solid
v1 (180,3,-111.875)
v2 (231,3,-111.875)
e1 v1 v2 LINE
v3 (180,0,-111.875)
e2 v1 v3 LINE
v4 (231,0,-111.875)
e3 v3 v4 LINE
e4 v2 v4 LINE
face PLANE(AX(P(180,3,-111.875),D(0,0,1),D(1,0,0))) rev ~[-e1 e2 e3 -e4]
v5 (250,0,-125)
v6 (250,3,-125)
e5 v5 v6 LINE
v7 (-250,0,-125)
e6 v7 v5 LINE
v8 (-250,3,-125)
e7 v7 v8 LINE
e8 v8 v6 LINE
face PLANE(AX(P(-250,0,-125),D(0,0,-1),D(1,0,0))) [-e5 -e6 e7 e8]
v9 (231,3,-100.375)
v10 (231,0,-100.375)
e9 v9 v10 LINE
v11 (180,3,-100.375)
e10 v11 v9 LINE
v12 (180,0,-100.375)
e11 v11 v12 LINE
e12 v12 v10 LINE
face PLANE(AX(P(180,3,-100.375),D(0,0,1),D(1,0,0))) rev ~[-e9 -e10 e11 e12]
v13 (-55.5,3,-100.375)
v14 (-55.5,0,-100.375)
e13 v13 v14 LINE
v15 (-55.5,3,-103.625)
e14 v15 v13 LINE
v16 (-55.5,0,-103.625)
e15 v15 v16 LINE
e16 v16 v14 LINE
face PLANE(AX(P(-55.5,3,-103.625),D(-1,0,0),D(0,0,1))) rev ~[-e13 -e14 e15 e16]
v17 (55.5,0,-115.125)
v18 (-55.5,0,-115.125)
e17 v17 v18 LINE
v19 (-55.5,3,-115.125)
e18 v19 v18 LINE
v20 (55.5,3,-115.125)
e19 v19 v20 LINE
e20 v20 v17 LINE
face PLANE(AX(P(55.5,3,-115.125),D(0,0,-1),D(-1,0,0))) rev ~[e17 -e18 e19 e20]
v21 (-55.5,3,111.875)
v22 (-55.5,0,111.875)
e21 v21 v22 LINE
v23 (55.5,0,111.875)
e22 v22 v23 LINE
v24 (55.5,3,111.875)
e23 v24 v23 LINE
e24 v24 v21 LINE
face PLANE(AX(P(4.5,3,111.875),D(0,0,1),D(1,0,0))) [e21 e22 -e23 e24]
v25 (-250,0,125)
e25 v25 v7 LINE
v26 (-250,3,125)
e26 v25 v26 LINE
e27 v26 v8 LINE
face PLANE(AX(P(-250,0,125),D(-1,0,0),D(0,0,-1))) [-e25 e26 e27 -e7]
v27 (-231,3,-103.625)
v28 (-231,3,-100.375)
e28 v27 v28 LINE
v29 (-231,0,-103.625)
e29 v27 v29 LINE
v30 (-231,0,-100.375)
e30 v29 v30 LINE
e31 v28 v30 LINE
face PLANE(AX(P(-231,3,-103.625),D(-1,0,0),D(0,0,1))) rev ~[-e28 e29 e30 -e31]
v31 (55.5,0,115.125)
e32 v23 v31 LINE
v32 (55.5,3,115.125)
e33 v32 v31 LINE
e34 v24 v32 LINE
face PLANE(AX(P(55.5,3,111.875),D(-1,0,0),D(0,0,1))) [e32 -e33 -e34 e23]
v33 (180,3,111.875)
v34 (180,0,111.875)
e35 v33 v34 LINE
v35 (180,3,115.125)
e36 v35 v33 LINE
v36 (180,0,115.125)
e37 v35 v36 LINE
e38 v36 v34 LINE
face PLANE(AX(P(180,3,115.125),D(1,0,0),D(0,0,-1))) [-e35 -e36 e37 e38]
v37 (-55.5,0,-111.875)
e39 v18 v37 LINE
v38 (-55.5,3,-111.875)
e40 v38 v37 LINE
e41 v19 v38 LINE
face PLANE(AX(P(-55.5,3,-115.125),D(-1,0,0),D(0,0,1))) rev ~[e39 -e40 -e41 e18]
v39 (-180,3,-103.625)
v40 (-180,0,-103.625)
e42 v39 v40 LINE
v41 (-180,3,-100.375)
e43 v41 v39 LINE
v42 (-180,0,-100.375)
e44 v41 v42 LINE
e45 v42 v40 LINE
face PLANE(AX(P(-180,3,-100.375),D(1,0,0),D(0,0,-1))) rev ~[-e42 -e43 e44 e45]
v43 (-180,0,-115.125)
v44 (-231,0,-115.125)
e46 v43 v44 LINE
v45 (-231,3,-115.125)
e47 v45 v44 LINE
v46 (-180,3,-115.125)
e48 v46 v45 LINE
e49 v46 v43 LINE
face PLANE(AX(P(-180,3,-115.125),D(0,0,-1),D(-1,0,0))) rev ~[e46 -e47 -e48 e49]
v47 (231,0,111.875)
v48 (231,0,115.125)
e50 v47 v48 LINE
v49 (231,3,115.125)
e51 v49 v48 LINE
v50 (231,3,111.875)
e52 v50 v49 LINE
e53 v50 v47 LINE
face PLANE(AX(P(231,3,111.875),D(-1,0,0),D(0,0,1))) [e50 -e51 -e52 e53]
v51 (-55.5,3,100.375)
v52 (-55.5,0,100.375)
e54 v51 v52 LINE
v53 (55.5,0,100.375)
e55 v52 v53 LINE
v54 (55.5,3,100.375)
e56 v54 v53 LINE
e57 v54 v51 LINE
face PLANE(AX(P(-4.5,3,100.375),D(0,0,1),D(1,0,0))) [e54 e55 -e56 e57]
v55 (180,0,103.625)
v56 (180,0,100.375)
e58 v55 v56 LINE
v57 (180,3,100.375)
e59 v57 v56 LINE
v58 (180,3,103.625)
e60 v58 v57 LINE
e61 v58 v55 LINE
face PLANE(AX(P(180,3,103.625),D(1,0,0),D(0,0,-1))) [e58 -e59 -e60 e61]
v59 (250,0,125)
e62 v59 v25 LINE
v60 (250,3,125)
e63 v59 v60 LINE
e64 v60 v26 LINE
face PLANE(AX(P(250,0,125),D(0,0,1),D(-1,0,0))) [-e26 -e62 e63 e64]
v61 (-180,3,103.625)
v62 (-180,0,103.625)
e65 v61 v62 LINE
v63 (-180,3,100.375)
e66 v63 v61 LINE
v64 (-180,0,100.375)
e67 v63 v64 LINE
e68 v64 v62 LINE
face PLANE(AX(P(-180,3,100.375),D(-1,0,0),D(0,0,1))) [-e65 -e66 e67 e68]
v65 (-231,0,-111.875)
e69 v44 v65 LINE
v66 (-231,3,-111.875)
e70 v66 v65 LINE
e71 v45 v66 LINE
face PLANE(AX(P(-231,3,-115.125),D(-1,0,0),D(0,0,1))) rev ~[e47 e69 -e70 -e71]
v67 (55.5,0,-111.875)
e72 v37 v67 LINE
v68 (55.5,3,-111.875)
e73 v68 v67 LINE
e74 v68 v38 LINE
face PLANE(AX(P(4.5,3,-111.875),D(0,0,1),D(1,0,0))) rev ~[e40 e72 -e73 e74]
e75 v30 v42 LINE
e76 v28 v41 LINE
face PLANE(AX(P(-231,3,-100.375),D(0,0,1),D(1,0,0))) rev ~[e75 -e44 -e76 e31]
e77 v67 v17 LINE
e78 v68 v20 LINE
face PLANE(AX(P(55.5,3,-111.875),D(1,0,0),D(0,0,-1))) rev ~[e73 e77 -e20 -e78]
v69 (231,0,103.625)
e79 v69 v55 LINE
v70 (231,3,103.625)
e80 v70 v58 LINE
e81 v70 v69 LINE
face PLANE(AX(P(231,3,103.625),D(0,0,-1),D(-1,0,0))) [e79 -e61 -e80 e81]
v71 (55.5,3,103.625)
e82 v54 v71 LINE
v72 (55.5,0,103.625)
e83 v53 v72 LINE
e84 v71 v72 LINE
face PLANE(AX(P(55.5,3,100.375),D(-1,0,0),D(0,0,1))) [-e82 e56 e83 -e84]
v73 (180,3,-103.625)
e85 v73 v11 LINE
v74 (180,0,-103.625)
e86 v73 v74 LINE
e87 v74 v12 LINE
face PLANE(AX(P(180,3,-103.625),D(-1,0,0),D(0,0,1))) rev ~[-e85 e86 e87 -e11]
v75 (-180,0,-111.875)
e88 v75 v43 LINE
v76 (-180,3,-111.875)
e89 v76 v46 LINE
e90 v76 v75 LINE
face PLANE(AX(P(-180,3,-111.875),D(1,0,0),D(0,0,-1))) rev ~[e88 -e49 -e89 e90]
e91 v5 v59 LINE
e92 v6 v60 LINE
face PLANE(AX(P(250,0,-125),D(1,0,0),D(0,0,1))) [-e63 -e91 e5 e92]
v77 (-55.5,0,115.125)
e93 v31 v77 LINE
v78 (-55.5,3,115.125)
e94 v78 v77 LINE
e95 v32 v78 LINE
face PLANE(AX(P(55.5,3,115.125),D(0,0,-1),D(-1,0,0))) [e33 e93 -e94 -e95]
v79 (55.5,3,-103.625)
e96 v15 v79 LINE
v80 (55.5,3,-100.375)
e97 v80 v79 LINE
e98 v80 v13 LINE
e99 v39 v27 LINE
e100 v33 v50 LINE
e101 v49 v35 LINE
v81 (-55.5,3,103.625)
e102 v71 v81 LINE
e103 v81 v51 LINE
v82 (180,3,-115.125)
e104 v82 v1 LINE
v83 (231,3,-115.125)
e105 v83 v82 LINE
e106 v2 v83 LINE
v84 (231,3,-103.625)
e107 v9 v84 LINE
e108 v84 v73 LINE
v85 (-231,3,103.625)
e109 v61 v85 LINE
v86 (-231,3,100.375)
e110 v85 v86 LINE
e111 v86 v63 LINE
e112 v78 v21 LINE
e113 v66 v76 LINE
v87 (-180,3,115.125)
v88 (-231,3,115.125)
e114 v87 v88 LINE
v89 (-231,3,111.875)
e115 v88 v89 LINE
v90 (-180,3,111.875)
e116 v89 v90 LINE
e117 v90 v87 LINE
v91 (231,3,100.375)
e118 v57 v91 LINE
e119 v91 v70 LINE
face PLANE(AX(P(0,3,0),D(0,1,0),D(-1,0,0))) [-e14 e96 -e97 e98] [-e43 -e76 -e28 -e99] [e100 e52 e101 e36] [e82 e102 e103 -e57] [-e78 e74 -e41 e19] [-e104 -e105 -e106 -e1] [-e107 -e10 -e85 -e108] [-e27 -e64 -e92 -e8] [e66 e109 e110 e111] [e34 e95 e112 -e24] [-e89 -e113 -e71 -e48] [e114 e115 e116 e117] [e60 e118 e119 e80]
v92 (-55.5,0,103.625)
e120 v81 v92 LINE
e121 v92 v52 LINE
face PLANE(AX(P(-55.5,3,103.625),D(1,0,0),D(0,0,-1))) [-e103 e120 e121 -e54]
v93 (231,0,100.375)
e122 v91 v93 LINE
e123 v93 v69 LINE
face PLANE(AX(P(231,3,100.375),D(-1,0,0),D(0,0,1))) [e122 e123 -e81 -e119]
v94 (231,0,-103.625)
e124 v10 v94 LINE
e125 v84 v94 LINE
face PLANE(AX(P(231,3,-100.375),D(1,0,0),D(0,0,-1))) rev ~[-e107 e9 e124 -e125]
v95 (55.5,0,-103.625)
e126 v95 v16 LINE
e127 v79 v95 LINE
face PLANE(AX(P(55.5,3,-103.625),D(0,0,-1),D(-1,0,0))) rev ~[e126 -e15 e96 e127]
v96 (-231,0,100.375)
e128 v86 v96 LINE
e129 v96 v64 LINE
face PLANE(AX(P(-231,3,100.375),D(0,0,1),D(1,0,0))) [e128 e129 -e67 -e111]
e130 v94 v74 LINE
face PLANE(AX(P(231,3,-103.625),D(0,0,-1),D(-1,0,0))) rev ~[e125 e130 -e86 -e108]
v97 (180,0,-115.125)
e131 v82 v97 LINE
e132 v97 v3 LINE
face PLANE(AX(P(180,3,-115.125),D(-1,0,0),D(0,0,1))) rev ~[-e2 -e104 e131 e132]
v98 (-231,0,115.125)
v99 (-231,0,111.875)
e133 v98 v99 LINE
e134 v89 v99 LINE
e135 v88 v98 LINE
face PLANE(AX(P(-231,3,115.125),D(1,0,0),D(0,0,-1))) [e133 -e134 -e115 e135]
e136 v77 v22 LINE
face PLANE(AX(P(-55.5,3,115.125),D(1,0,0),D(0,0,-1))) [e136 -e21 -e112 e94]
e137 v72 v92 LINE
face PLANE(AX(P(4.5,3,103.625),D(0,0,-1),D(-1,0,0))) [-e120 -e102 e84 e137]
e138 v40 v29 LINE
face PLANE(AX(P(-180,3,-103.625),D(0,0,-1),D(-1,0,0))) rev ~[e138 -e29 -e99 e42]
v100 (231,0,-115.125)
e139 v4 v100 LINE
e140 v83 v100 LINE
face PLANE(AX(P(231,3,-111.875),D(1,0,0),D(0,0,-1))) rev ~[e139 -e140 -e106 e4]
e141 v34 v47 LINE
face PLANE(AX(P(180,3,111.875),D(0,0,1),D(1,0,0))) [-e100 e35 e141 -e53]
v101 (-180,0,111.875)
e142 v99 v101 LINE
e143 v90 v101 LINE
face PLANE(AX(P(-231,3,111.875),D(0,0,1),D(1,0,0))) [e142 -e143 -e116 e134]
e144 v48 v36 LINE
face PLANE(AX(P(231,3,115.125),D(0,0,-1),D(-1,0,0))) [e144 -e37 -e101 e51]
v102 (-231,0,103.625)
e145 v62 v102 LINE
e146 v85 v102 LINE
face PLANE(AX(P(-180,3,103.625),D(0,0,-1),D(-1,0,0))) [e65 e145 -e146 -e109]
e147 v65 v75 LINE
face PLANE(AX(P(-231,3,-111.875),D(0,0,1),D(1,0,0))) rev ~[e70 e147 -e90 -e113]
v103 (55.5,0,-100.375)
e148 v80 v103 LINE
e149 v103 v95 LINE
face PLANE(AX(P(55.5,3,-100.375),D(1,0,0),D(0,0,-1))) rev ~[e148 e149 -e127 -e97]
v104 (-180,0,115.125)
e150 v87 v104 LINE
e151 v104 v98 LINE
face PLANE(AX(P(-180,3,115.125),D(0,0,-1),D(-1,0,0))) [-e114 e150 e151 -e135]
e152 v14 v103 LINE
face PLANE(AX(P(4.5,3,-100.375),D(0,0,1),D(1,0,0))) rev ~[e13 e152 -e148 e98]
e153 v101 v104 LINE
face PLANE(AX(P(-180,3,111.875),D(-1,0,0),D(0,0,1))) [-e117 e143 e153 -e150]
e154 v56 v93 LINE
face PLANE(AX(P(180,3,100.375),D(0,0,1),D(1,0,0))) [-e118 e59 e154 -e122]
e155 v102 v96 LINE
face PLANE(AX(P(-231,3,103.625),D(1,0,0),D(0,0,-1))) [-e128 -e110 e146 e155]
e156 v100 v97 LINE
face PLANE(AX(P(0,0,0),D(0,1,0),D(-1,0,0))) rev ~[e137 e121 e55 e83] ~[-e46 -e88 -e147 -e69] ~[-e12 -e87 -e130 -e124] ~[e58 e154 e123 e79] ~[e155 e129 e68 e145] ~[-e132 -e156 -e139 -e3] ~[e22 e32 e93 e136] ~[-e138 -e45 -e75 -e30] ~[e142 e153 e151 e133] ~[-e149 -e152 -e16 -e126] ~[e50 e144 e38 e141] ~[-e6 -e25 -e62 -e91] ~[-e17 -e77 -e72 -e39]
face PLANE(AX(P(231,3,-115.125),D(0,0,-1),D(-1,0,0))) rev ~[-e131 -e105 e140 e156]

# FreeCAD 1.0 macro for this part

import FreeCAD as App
import Part
import Sketcher


def add_polygon(sketch, points):
    """Adds a closed chain of lines whose ends are joined by coincident constraints."""
    first, n = sketch.GeometryCount, len(points)
    for a, b in zip(points, points[1:] + points[:1]):
        sketch.addGeometry(Part.LineSegment(App.Vector(*a, 0), App.Vector(*b, 0)), False)
    for i in range(n):
        sketch.addConstraint(Sketcher.Constraint("Coincident", first + i, 2, first + (i + 1) % n, 1))

doc = App.newDocument("Part")
body = doc.addObject("PartDesign::Body", "Body")

# Sketch on XZ plane
sketch1 = body.newObject("Sketcher::SketchObject", "Sketch")
sketch1.AttachmentSupport = (doc.getObject("XZ_Plane"), [""])
sketch1.MapMode = "FlatFace"
add_polygon(sketch1, [(-250, 125), (250, 125), (250, -125), (-250, -125)])  # lines 0-3
sketch1.addConstraint(Sketcher.Constraint("Horizontal", 0))
sketch1.addConstraint(Sketcher.Constraint("Vertical", 1))
sketch1.addConstraint(Sketcher.Constraint("Horizontal", 2))
sketch1.addConstraint(Sketcher.Constraint("Vertical", 3))
sketch1.addConstraint(Sketcher.Constraint("Symmetric", 0, 2, 2, 2, -1, 1))
sketch1.addConstraint(Sketcher.Constraint("DistanceX", 0, 1, 0, 2, 500.0))
sketch1.addConstraint(Sketcher.Constraint("DistanceY", 1, 2, 1, 1, 250.0))
pad1 = body.newObject("PartDesign::Pad", "Pad")
pad1.Profile = sketch1
pad1.Length = 3
pad1.Reversed = True

# Sketch on XZ plane
sketch2 = body.newObject("Sketcher::SketchObject", "Sketch001")
sketch2.AttachmentSupport = (doc.getObject("XZ_Plane"), [""])
sketch2.MapMode = "FlatFace"
sketch2.AttachmentOffset = App.Placement(App.Vector(0, 0, -3), App.Rotation())
add_polygon(sketch2, [(55.5, -111.9), (55.5, -115.1), (-55.5, -115.1), (-55.5, -111.9)])  # lines 0-3
add_polygon(sketch2, [(231, -111.9), (231, -115.1), (180, -115.1), (180, -111.9)])  # lines 4-7
add_polygon(sketch2, [(-180, -111.9), (-180, -115.1), (-231, -115.1), (-231, -111.9)])  # lines 8-11
add_polygon(sketch2, [(55.5, -100.4), (55.5, -103.6), (-55.5, -103.6), (-55.5, -100.4)])  # lines 12-15
add_polygon(sketch2, [(-180, -100.4), (-180, -103.6), (-231, -103.6), (-231, -100.4)])  # lines 16-19
add_polygon(sketch2, [(231, -100.4), (231, -103.6), (180, -103.6), (180, -100.4)])  # lines 20-23
add_polygon(sketch2, [(55.5, 115.1), (55.5, 111.9), (-55.5, 111.9), (-55.5, 115.1)])  # lines 24-27
add_polygon(sketch2, [(180, 115.1), (231, 115.1), (231, 111.9), (180, 111.9)])  # lines 28-31
add_polygon(sketch2, [(-231, 115.1), (-180, 115.1), (-180, 111.9), (-231, 111.9)])  # lines 32-35
add_polygon(sketch2, [(55.5, 103.6), (55.5, 100.4), (-55.5, 100.4), (-55.5, 103.6)])  # lines 36-39
add_polygon(sketch2, [(-180, 103.6), (-180, 100.4), (-231, 100.4), (-231, 103.6)])  # lines 40-43
add_polygon(sketch2, [(180, 100.4), (180, 103.6), (231, 103.6), (231, 100.4)])  # lines 44-47
sketch2.addConstraint(Sketcher.Constraint("Vertical", 0))
sketch2.addConstraint(Sketcher.Constraint("Horizontal", 1))
sketch2.addConstraint(Sketcher.Constraint("Vertical", 2))
sketch2.addConstraint(Sketcher.Constraint("Horizontal", 3))
sketch2.addConstraint(Sketcher.Constraint("Vertical", 4))
sketch2.addConstraint(Sketcher.Constraint("Horizontal", 5))
sketch2.addConstraint(Sketcher.Constraint("Vertical", 6))
sketch2.addConstraint(Sketcher.Constraint("Horizontal", 7))
sketch2.addConstraint(Sketcher.Constraint("Vertical", 8))
sketch2.addConstraint(Sketcher.Constraint("Horizontal", 9))
sketch2.addConstraint(Sketcher.Constraint("Vertical", 10))
sketch2.addConstraint(Sketcher.Constraint("Horizontal", 11))
sketch2.addConstraint(Sketcher.Constraint("Vertical", 12))
sketch2.addConstraint(Sketcher.Constraint("Horizontal", 13))
sketch2.addConstraint(Sketcher.Constraint("Vertical", 14))
sketch2.addConstraint(Sketcher.Constraint("Horizontal", 15))
sketch2.addConstraint(Sketcher.Constraint("Vertical", 16))
sketch2.addConstraint(Sketcher.Constraint("Horizontal", 17))
sketch2.addConstraint(Sketcher.Constraint("Vertical", 18))
sketch2.addConstraint(Sketcher.Constraint("Horizontal", 19))
sketch2.addConstraint(Sketcher.Constraint("Vertical", 20))
sketch2.addConstraint(Sketcher.Constraint("Horizontal", 21))
sketch2.addConstraint(Sketcher.Constraint("Vertical", 22))
sketch2.addConstraint(Sketcher.Constraint("Horizontal", 23))
sketch2.addConstraint(Sketcher.Constraint("Vertical", 24))
sketch2.addConstraint(Sketcher.Constraint("Horizontal", 25))
sketch2.addConstraint(Sketcher.Constraint("Vertical", 26))
sketch2.addConstraint(Sketcher.Constraint("Horizontal", 27))
sketch2.addConstraint(Sketcher.Constraint("Horizontal", 28))
sketch2.addConstraint(Sketcher.Constraint("Vertical", 29))
sketch2.addConstraint(Sketcher.Constraint("Horizontal", 30))
sketch2.addConstraint(Sketcher.Constraint("Vertical", 31))
sketch2.addConstraint(Sketcher.Constraint("Horizontal", 32))
sketch2.addConstraint(Sketcher.Constraint("Vertical", 33))
sketch2.addConstraint(Sketcher.Constraint("Horizontal", 34))
sketch2.addConstraint(Sketcher.Constraint("Vertical", 35))
sketch2.addConstraint(Sketcher.Constraint("Vertical", 36))
sketch2.addConstraint(Sketcher.Constraint("Horizontal", 37))
sketch2.addConstraint(Sketcher.Constraint("Vertical", 38))
sketch2.addConstraint(Sketcher.Constraint("Horizontal", 39))
sketch2.addConstraint(Sketcher.Constraint("Vertical", 40))
sketch2.addConstraint(Sketcher.Constraint("Horizontal", 41))
sketch2.addConstraint(Sketcher.Constraint("Vertical", 42))
sketch2.addConstraint(Sketcher.Constraint("Horizontal", 43))
sketch2.addConstraint(Sketcher.Constraint("Vertical", 44))
sketch2.addConstraint(Sketcher.Constraint("Horizontal", 45))
sketch2.addConstraint(Sketcher.Constraint("Vertical", 46))
sketch2.addConstraint(Sketcher.Constraint("Horizontal", 47))
sketch2.addConstraint(Sketcher.Constraint("Symmetric", 2, 2, 24, 2, -1, 1))
sketch2.addConstraint(Sketcher.Constraint("Symmetric", 0, 2, 26, 2, -1, 1))
sketch2.addConstraint(Sketcher.Constraint("Symmetric", 9, 2, 28, 2, -1, 1))
sketch2.addConstraint(Sketcher.Constraint("Symmetric", 11, 2, 30, 2, -1, 1))
sketch2.addConstraint(Sketcher.Constraint("Symmetric", 5, 2, 32, 2, -1, 1))
sketch2.addConstraint(Sketcher.Constraint("Symmetric", 7, 2, 34, 2, -1, 1))
sketch2.addConstraint(Sketcher.Constraint("Symmetric", 14, 2, 36, 2, -1, 1))
sketch2.addConstraint(Sketcher.Constraint("Symmetric", 12, 2, 38, 2, -1, 1))
sketch2.addConstraint(Sketcher.Constraint("Symmetric", 22, 2, 40, 2, -1, 1))
sketch2.addConstraint(Sketcher.Constraint("Symmetric", 20, 2, 42, 2, -1, 1))
sketch2.addConstraint(Sketcher.Constraint("Symmetric", 16, 2, 44, 2, -1, 1))
sketch2.addConstraint(Sketcher.Constraint("Symmetric", 18, 2, 46, 2, -1, 1))
sketch2.addConstraint(Sketcher.Constraint("Symmetric", 5, 2, 8, 2, -2))
sketch2.addConstraint(Sketcher.Constraint("Symmetric", 7, 2, 10, 2, -2))
sketch2.addConstraint(Sketcher.Constraint("Symmetric", 17, 2, 20, 2, -2))
sketch2.addConstraint(Sketcher.Constraint("Symmetric", 19, 2, 22, 2, -2))
sketch2.addConstraint(Sketcher.Constraint("Horizontal", 1, 2, 4, 2))
sketch2.addConstraint(Sketcher.Constraint("Horizontal", 3, 2, 6, 2))
sketch2.addConstraint(Sketcher.Constraint("Horizontal", 13, 2, 16, 2))
sketch2.addConstraint(Sketcher.Constraint("Horizontal", 15, 2, 18, 2))
sketch2.addConstraint(Sketcher.Constraint("Vertical", 3, 2, 12, 2))
sketch2.addConstraint(Sketcher.Constraint("Vertical", 2, 2, 13, 2))
sketch2.addConstraint(Sketcher.Constraint("Vertical", 11, 2, 16, 2))
sketch2.addConstraint(Sketcher.Constraint("Vertical", 10, 2, 17, 2))
sketch2.addConstraint(Sketcher.Constraint("Vertical", 15, 2, 24, 2))
sketch2.addConstraint(Sketcher.Constraint("Equal", 10, 12))
sketch2.addConstraint(Sketcher.Constraint("DistanceX", 5, 2, 5, 1, 51.0))
sketch2.addConstraint(Sketcher.Constraint("DistanceY", 0, 2, 0, 1, 3.25))
sketch2.addConstraint(Sketcher.Constraint("DistanceX", 0, 2, 5, 2, 124.5))
sketch2.addConstraint(Sketcher.Constraint("DistanceY", 0, 2, 12, 2, 11.5))
sketch2.addConstraint(Sketcher.Constraint("DistanceX", 1, 2, 1, 1, 111.0))
sketch2.addConstraint(Sketcher.Constraint("DistanceY", 0, 2, 24, 2, 227.0))
pocket1 = body.newObject("PartDesign::Pocket", "Pocket")
pocket1.Profile = sketch2
pocket1.Length = 10
pocket1.Reversed = True

doc.recompute()
